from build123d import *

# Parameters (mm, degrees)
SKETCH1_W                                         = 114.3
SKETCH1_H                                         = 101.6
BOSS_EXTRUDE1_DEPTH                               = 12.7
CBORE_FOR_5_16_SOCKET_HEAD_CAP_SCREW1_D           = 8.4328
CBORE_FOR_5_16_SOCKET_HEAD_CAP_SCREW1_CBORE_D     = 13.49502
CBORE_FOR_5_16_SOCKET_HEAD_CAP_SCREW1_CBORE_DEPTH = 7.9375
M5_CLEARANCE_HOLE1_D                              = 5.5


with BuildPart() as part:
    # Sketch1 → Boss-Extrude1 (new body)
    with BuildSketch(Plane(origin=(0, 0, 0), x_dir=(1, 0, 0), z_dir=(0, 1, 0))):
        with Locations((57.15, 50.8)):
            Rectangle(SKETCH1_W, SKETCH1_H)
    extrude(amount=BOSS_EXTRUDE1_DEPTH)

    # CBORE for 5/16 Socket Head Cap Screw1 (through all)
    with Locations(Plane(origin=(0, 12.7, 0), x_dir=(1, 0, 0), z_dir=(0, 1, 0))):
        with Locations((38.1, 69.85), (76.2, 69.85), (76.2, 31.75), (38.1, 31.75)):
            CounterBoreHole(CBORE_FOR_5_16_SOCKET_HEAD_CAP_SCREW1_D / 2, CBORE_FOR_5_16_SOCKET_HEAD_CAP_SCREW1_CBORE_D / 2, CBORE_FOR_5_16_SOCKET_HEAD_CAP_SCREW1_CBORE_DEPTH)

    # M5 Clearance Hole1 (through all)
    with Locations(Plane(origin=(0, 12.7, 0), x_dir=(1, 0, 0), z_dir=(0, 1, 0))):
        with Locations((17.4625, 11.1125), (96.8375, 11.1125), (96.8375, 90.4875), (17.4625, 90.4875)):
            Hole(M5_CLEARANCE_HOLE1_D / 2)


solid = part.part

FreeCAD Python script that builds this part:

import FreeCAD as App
import Part
import Sketcher
Q = App.Units.Quantity

doc = App.newDocument("Part")
body = doc.addObject("PartDesign::Body", "Body")

sketch1 = doc.addObject("Sketcher::SketchObject", "Sketch")
body.addObject(sketch1)
sketch1.AttachmentSupport = (doc.XZ_Plane, [""])
sketch1.MapMode = "FlatFace"
sketch1.addGeometry(Part.LineSegment(App.Vector(0, -102, 0), App.Vector(0, 0, 0)), False)
sketch1.addGeometry(Part.LineSegment(App.Vector(0, 0, 0), App.Vector(114, 0, 0)), False)
sketch1.addGeometry(Part.LineSegment(App.Vector(114, 0, 0), App.Vector(114, -102, 0)), False)
sketch1.addGeometry(Part.LineSegment(App.Vector(114, -102, 0), App.Vector(0, -102, 0)), False)
sketch1.addConstraint(Sketcher.Constraint("Coincident", 0, 2, 1, 1))
sketch1.addConstraint(Sketcher.Constraint("Coincident", 1, 2, 2, 1))
sketch1.addConstraint(Sketcher.Constraint("Coincident", 2, 2, 3, 1))
sketch1.addConstraint(Sketcher.Constraint("Coincident", 3, 2, 0, 1))
sketch1.addConstraint(Sketcher.Constraint("Vertical", 0))
sketch1.addConstraint(Sketcher.Constraint("Horizontal", 1))
sketch1.addConstraint(Sketcher.Constraint("Vertical", 2))
sketch1.addConstraint(Sketcher.Constraint("Horizontal", 3))
sketch1.addConstraint(Sketcher.Constraint("Coincident", 0, 2, -1, 1))
sketch1.addConstraint(Sketcher.Constraint("DistanceY", 0, 1, 0, 2, Q("4 in")))
sketch1.addConstraint(Sketcher.Constraint("DistanceX", 1, 1, 1, 2, Q("4.5 in")))
pad1 = doc.addObject("PartDesign::Pad", "Pad")
body.addObject(pad1)
pad1.Profile = sketch1
pad1.Length = Q("0.5 in")
pad1.Reversed = True

sketch2 = doc.addObject("Sketcher::SketchObject", "Sketch001")
body.addObject(sketch2)
sketch2.AttachmentSupport = (doc.XZ_Plane, [""])
sketch2.MapMode = "FlatFace"
sketch2.AttachmentOffset = App.Placement(App.Vector(0, 0, -0.5 * 25.4), App.Rotation())
sketch2.addGeometry(Part.Circle(App.Vector(38.1, -69.8, 0), App.Vector(0, 0, 1), 4.2), False)
sketch2.addGeometry(Part.Circle(App.Vector(76.2, -69.8, 0), App.Vector(0, 0, 1), 4.2), False)
sketch2.addGeometry(Part.Circle(App.Vector(76.2, -31.8, 0), App.Vector(0, 0, 1), 4.2), False)
sketch2.addGeometry(Part.Circle(App.Vector(38.1, -31.8, 0), App.Vector(0, 0, 1), 4.2), False)
sketch2.addConstraint(Sketcher.Constraint("Equal", 0, 1))
sketch2.addConstraint(Sketcher.Constraint("Equal", 1, 2))
sketch2.addConstraint(Sketcher.Constraint("Equal", 2, 3))
sketch2.addConstraint(Sketcher.Constraint("Horizontal", 0, 3, 1, 3))
sketch2.addConstraint(Sketcher.Constraint("Horizontal", 2, 3, 3, 3))
sketch2.addConstraint(Sketcher.Constraint("Vertical", 1, 3, 2, 3))
sketch2.addConstraint(Sketcher.Constraint("Vertical", 0, 3, 3, 3))
sketch2.addConstraint(Sketcher.Constraint("Diameter", 0, Q("0.332 in")))
sketch2.addConstraint(Sketcher.Constraint("DistanceX", -1, 1, 1, 3, Q("3 in")))
sketch2.addConstraint(Sketcher.Constraint("DistanceX", -1, 1, 0, 3, Q("1.5 in")))
sketch2.addConstraint(Sketcher.Constraint("DistanceY", 1, 3, 2, 3, Q("1.5 in")))
sketch2.addConstraint(Sketcher.Constraint("DistanceY", 0, 3, -1, 1, Q("2.75 in")))
doc.recompute()
hole = doc.addObject("PartDesign::Hole", "Hole")
body.addObject(hole)
hole.Profile = sketch2
hole.ThreadType = "None"
hole.Diameter = Q("0.332 in")
hole.DepthType = "ThroughAll"
hole.HoleCutType = "Counterbore"
hole.HoleCutDiameter = Q("0.5313 in")
hole.HoleCutDepth = Q("0.3125 in")
hole.Reversed = True

sketch3 = doc.addObject("Sketcher::SketchObject", "Sketch002")
body.addObject(sketch3)
sketch3.AttachmentSupport = (doc.XZ_Plane, [""])
sketch3.MapMode = "FlatFace"
sketch3.AttachmentOffset = App.Placement(App.Vector(0, 0, -0.5 * 25.4), App.Rotation())
sketch3.addGeometry(Part.Circle(App.Vector(17.5, -11.1, 0), App.Vector(0, 0, 1), 2.8), False)
sketch3.addGeometry(Part.Circle(App.Vector(96.8, -11.1, 0), App.Vector(0, 0, 1), 2.8), False)
sketch3.addGeometry(Part.Circle(App.Vector(96.8, -90.5, 0), App.Vector(0, 0, 1), 2.8), False)
sketch3.addGeometry(Part.Circle(App.Vector(17.5, -90.5, 0), App.Vector(0, 0, 1), 2.8), False)
sketch3.addConstraint(Sketcher.Constraint("Equal", 0, 1))
sketch3.addConstraint(Sketcher.Constraint("Equal", 1, 2))
sketch3.addConstraint(Sketcher.Constraint("Equal", 2, 3))
sketch3.addConstraint(Sketcher.Constraint("Horizontal", 0, 3, 1, 3))
sketch3.addConstraint(Sketcher.Constraint("Horizontal", 2, 3, 3, 3))
sketch3.addConstraint(Sketcher.Constraint("Vertical", 1, 3, 2, 3))
sketch3.addConstraint(Sketcher.Constraint("Vertical", 0, 3, 3, 3))
sketch3.addConstraint(Sketcher.Constraint("Diameter", 0, 5.5))
sketch3.addConstraint(Sketcher.Constraint("DistanceX", -1, 1, 0, 3, Q("0.6875 in")))
sketch3.addConstraint(Sketcher.Constraint("DistanceY", 0, 3, -1, 1, Q("0.4375 in")))
sketch3.addConstraint(Sketcher.Constraint("DistanceX", -1, 1, 1, 3, Q("3.8125 in")))
sketch3.addConstraint(Sketcher.Constraint("DistanceY", 2, 3, -1, 1, Q("3.5625 in")))
doc.recompute()
hole2 = doc.addObject("PartDesign::Hole", "Hole001")
body.addObject(hole2)
hole2.Profile = sketch3
hole2.ThreadType = "None"
hole2.Diameter = 5.5
hole2.DepthType = "ThroughAll"
hole2.Reversed = True

doc.recompute()
